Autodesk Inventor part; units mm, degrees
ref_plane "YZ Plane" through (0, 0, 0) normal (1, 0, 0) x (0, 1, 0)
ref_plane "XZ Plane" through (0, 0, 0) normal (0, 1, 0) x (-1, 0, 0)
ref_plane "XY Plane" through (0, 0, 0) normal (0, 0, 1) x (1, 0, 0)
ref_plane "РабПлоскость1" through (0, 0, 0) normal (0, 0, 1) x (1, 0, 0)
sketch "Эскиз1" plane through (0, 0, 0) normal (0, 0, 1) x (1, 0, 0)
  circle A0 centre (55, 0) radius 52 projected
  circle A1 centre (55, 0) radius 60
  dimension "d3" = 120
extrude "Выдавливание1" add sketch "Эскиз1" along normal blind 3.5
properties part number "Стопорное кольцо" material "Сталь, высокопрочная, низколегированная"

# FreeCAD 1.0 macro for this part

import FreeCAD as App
import Part
import Sketcher

V = App.Vector

doc = App.newDocument("Part")
body = doc.addObject("PartDesign::Body", "Body")

sketch1 = body.newObject("Sketcher::SketchObject", "Sketch")
sketch1.AttachmentSupport = (doc.getObject("XY_Plane"), [""])
sketch1.MapMode = "FlatFace"
sketch1.addGeometry(Part.Circle(V(55, 0, 0), V(0, 0, 1), 60), False)
sketch1.addGeometry(Part.Circle(V(55, 0, 0), V(0, 0, 1), 52), False)
sketch1.addConstraint(Sketcher.Constraint("Coincident", 1, 3, 0, 3))
sketch1.addConstraint(Sketcher.Constraint("PointOnObject", 0, 3, -1))
sketch1.addConstraint(Sketcher.Constraint("Diameter", 0, 120.0))
sketch1.addConstraint(Sketcher.Constraint("Diameter", 1, 104.0))
sketch1.addConstraint(Sketcher.Constraint("DistanceX", -1, 1, 0, 3, 55.0))
pad1 = body.newObject("PartDesign::Pad", "Pad")
pad1.Profile = sketch1
pad1.Length = 3.5

doc.recompute()
